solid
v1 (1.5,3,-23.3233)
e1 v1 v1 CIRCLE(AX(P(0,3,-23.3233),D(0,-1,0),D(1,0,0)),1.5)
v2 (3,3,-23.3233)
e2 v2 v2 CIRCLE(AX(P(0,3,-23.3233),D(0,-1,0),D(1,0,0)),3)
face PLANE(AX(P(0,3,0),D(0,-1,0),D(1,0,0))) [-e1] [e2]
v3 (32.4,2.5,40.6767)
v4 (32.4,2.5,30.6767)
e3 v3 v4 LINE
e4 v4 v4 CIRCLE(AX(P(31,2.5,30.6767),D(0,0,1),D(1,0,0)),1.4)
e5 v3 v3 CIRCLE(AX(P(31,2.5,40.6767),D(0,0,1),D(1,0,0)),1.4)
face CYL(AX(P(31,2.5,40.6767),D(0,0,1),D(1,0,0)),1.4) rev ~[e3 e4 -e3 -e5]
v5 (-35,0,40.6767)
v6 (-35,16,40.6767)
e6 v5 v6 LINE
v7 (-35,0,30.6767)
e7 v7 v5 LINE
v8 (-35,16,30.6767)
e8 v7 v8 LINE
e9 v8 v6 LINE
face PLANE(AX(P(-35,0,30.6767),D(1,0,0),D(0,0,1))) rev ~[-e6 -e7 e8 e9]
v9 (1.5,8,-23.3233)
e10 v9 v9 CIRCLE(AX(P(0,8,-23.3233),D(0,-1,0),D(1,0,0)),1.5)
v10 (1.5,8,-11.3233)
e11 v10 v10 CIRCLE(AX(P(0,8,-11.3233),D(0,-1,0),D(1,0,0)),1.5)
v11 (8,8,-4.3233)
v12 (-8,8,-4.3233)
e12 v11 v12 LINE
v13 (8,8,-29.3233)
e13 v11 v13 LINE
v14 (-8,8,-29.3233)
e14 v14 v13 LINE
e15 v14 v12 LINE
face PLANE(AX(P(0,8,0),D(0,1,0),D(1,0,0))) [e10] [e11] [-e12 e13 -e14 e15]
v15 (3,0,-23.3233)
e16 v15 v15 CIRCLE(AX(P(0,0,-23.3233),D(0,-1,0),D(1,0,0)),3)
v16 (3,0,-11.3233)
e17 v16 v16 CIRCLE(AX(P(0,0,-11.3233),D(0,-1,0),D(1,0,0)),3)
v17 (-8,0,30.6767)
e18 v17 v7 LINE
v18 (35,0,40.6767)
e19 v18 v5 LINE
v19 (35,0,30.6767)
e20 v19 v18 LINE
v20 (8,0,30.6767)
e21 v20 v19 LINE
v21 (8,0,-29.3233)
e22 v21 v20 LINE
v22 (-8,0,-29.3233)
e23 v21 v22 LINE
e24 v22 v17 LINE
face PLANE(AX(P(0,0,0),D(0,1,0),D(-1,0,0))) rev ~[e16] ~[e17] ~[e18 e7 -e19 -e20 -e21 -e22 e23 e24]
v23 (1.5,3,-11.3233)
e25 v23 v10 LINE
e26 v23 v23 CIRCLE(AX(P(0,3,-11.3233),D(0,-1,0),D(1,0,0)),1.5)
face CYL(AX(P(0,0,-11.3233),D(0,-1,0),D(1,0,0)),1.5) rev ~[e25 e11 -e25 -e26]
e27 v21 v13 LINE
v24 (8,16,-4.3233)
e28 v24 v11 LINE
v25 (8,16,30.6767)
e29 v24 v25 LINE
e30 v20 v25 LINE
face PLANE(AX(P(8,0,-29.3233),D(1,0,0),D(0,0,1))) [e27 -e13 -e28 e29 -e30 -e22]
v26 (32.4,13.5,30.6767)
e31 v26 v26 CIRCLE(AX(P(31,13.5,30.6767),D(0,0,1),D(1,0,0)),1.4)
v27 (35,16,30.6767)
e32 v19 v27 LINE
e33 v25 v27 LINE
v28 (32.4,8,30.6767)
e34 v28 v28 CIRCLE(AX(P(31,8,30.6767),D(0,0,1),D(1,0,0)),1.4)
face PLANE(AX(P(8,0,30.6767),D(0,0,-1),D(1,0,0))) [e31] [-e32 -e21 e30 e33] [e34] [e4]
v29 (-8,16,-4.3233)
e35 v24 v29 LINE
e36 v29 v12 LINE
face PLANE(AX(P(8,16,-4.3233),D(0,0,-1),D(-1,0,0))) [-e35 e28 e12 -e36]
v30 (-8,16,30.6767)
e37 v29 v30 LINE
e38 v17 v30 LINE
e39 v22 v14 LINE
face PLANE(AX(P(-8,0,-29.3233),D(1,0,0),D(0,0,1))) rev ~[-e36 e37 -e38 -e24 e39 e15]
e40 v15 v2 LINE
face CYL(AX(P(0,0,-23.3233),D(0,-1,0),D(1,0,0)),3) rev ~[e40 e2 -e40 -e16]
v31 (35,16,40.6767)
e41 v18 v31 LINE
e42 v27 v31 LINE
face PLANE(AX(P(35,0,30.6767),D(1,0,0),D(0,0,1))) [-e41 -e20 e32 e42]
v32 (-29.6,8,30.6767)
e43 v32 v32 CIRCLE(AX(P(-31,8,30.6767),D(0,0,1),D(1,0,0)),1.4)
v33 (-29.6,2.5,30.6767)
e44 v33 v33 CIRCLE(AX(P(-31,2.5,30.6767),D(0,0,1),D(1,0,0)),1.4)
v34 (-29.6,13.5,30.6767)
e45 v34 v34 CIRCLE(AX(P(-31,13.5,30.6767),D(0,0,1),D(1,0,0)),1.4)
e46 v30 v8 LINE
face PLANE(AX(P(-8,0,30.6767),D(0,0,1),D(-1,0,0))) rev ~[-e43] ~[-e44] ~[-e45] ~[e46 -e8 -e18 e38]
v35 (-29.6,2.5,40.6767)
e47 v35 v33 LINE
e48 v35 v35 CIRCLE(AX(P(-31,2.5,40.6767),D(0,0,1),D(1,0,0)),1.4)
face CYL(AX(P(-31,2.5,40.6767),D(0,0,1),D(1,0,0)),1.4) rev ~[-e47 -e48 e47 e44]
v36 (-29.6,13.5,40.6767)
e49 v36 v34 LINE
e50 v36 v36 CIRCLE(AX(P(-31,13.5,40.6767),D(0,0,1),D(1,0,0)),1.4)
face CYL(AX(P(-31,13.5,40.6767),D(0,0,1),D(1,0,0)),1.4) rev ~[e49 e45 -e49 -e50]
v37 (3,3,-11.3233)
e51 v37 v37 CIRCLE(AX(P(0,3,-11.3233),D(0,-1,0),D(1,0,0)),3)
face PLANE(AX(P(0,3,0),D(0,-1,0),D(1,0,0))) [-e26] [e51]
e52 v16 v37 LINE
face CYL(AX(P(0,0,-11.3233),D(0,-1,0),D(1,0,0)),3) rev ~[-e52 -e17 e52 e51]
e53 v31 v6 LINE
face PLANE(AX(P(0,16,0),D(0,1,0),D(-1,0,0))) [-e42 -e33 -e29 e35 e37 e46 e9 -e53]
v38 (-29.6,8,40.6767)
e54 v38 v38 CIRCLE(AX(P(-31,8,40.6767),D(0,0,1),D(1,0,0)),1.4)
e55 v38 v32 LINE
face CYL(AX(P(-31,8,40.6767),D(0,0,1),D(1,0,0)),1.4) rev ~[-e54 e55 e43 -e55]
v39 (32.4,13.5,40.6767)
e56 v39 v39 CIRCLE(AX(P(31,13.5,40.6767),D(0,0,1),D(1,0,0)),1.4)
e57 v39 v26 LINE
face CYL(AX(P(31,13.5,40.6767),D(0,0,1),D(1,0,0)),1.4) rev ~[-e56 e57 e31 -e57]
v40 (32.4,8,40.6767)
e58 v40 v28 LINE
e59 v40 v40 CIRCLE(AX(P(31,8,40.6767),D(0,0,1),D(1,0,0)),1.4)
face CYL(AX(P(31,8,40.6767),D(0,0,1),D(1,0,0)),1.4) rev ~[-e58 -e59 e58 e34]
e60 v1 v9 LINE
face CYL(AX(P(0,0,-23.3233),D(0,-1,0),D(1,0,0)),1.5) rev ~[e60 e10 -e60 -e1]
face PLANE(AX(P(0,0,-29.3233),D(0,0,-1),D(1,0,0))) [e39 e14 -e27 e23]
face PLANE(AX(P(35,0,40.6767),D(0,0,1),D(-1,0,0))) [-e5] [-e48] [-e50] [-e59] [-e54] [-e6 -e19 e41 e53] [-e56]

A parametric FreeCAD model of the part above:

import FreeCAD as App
import Part
import Sketcher
from FreeCAD import Vector
Q = App.Units.Quantity


def add_polygon(sketch, points):
    """Adds a closed chain of lines whose ends are joined by coincident constraints."""
    first, n = sketch.GeometryCount, len(points)
    for a, b in zip(points, points[1:] + points[:1]):
        sketch.addGeometry(Part.LineSegment(App.Vector(*a, 0), App.Vector(*b, 0)), False)
    for i in range(n):
        sketch.addConstraint(Sketcher.Constraint("Coincident", first + i, 2, first + (i + 1) % n, 1))

doc = App.newDocument("Part")
body = doc.addObject("PartDesign::Body", "Body")

# Sketch on XZ plane
sketch1 = body.newObject("Sketcher::SketchObject", "Sketch")
sketch1.AttachmentSupport = (doc.getObject("XZ_Plane"), [""])
sketch1.MapMode = "FlatFace"
add_polygon(sketch1, [(8, -29), (-8, -29), (-8, 31), (-35, 31), (-35, 41), (35, 41), (35, 31), (8, 31)])  # lines 0-7
sketch1.addConstraint(Sketcher.Constraint("Horizontal", 0))
sketch1.addConstraint(Sketcher.Constraint("Vertical", 1))
sketch1.addConstraint(Sketcher.Constraint("Horizontal", 2))
sketch1.addConstraint(Sketcher.Constraint("Vertical", 3))
sketch1.addConstraint(Sketcher.Constraint("Horizontal", 4))
sketch1.addConstraint(Sketcher.Constraint("Vertical", 5))
sketch1.addConstraint(Sketcher.Constraint("Horizontal", 6))
sketch1.addConstraint(Sketcher.Constraint("Vertical", 7))
sketch1.addConstraint(Sketcher.Constraint("Symmetric", 2, 2, 5, 2, -2))
sketch1.addConstraint(Sketcher.Constraint("Equal", 2, 6))
sketch1.addConstraint(Sketcher.Constraint("DistanceX", 0, 2, 0, 1, Q("16 mm")))
sketch1.addConstraint(Sketcher.Constraint("DistanceX", 4, 1, 4, 2, Q("70 mm")))
sketch1.addConstraint(Sketcher.Constraint("DistanceY", 3, 1, 3, 2, Q("10 mm")))
sketch1.addConstraint(Sketcher.Constraint("DistanceY", 0, 2, 3, 2, Q("70 mm")))
sketch1.addConstraint(Sketcher.Constraint("DistanceY", 0, 2, -1, 1, Q("29.3233 mm")))
pad1 = body.newObject("PartDesign::Pad", "Pad")
pad1.Profile = sketch1
pad1.Length = 16
pad1.Reversed = True

# Sketch on XZ plane
sketch2 = body.newObject("Sketcher::SketchObject", "Sketch001")
sketch2.AttachmentSupport = (doc.getObject("XZ_Plane"), [""])
sketch2.MapMode = "FlatFace"
sketch2.AttachmentOffset = App.Placement(Vector(0, 0, -16), App.Rotation())
add_polygon(sketch2, [(8, -4), (8, -29), (-8, -29), (-8, -4)])  # lines 0-3
sketch2.addConstraint(Sketcher.Constraint("Vertical", 0))
sketch2.addConstraint(Sketcher.Constraint("Horizontal", 1))
sketch2.addConstraint(Sketcher.Constraint("Vertical", 2))
sketch2.addConstraint(Sketcher.Constraint("Horizontal", 3))
sketch2.addConstraint(Sketcher.Constraint("DistanceY", 0, 2, 0, 1, Q("25 mm")))
sketch2.addConstraint(Sketcher.Constraint("DistanceX", 1, 2, 1, 1, Q("16 mm")))
sketch2.addConstraint(Sketcher.Constraint("DistanceX", -1, 1, 0, 2, Q("8 mm")))
sketch2.addConstraint(Sketcher.Constraint("DistanceY", 0, 2, -1, 1, Q("29.3233 mm")))
pocket1 = body.newObject("PartDesign::Pocket", "Pocket")
pocket1.Profile = sketch2
pocket1.Length = 8
pocket1.Reversed = True

# Sketch on XZ plane
sketch3 = body.newObject("Sketcher::SketchObject", "Sketch002")
sketch3.AttachmentSupport = (doc.getObject("XZ_Plane"), [""])
sketch3.MapMode = "FlatFace"
sketch3.addGeometry(Part.Circle(Vector(0, -23.3, 0), Vector(0, 0, 1), 1.5), False)
sketch3.addGeometry(Part.Circle(Vector(0, -11.3, 0), Vector(0, 0, 1), 1.5), False)
sketch3.addConstraint(Sketcher.Constraint("Equal", 0, 1))
sketch3.addConstraint(Sketcher.Constraint("PointOnObject", 0, 3, -2))
sketch3.addConstraint(Sketcher.Constraint("PointOnObject", 1, 3, -2))
sketch3.addConstraint(Sketcher.Constraint("Diameter", 0, Q("3 mm")))
sketch3.addConstraint(Sketcher.Constraint("DistanceY", 0, 3, 1, 3, Q("12 mm")))
sketch3.addConstraint(Sketcher.Constraint("DistanceY", 0, 3, -1, 1, Q("23.3233 mm")))
pocket2 = body.newObject("PartDesign::Pocket", "Pocket001")
pocket2.Profile = sketch3
pocket2.Type = "ThroughAll"

# Sketch on XZ plane
sketch4 = body.newObject("Sketcher::SketchObject", "Sketch003")
sketch4.AttachmentSupport = (doc.getObject("XZ_Plane"), [""])
sketch4.MapMode = "FlatFace"
sketch4.addGeometry(Part.Circle(Vector(0, -23.3, 0), Vector(0, 0, 1), 3), False)
sketch4.addGeometry(Part.Circle(Vector(0, -23.3, 0), Vector(0, 0, 1), 1.5), False)
sketch4.addGeometry(Part.Circle(Vector(0, -11.3, 0), Vector(0, 0, 1), 3), False)
sketch4.addGeometry(Part.Circle(Vector(0, -11.3, 0), Vector(0, 0, 1), 1.5), False)
sketch4.addConstraint(Sketcher.Constraint("Coincident", 1, 3, 0, 3))
sketch4.addConstraint(Sketcher.Constraint("Coincident", 3, 3, 2, 3))
sketch4.addConstraint(Sketcher.Constraint("Equal", 0, 2))
sketch4.addConstraint(Sketcher.Constraint("Equal", 1, 3))
sketch4.addConstraint(Sketcher.Constraint("PointOnObject", 0, 3, -2))
sketch4.addConstraint(Sketcher.Constraint("PointOnObject", 2, 3, -2))
sketch4.addConstraint(Sketcher.Constraint("Diameter", 0, Q("6 mm")))
sketch4.addConstraint(Sketcher.Constraint("Diameter", 1, Q("3 mm")))
sketch4.addConstraint(Sketcher.Constraint("DistanceY", 0, 3, 2, 3, Q("12 mm")))
sketch4.addConstraint(Sketcher.Constraint("DistanceY", 0, 3, -1, 1, Q("23.3233 mm")))
pocket3 = body.newObject("PartDesign::Pocket", "Pocket002")
pocket3.Profile = sketch4
pocket3.Length = 3

# Sketch on XY plane
sketch5 = body.newObject("Sketcher::SketchObject", "Sketch004")
sketch5.AttachmentSupport = (doc.getObject("XY_Plane"), [""])
sketch5.MapMode = "FlatFace"
sketch5.AttachmentOffset = App.Placement(Vector(0, 0, 40.6767), App.Rotation())
sketch5.addGeometry(Part.Circle(Vector(-31, 13.5, 0), Vector(0, 0, 1), 1.4), False)
sketch5.addGeometry(Part.Circle(Vector(-31, 8, 0), Vector(0, 0, 1), 1.4), False)
sketch5.addGeometry(Part.Circle(Vector(-31, 2.5, 0), Vector(0, 0, 1), 1.4), False)
sketch5.addGeometry(Part.Circle(Vector(31, 13.5, 0), Vector(0, 0, 1), 1.4), False)
sketch5.addGeometry(Part.Circle(Vector(31, 8, 0), Vector(0, 0, 1), 1.4), False)
sketch5.addGeometry(Part.Circle(Vector(31, 2.5, 0), Vector(0, 0, 1), 1.4), False)
sketch5.addConstraint(Sketcher.Constraint("Equal", 0, 1))
sketch5.addConstraint(Sketcher.Constraint("Equal", 1, 2))
sketch5.addConstraint(Sketcher.Constraint("Equal", 2, 3))
sketch5.addConstraint(Sketcher.Constraint("Equal", 3, 4))
sketch5.addConstraint(Sketcher.Constraint("Equal", 4, 5))
sketch5.addConstraint(Sketcher.Constraint("Symmetric", 0, 3, 3, 3, -2))
sketch5.addConstraint(Sketcher.Constraint("Symmetric", 1, 3, 4, 3, -2))
sketch5.addConstraint(Sketcher.Constraint("Symmetric", 2, 3, 5, 3, -2))
sketch5.addConstraint(Sketcher.Constraint("Vertical", 0, 3, 1, 3))
sketch5.addConstraint(Sketcher.Constraint("Vertical", 1, 3, 2, 3))
sketch5.addConstraint(Sketcher.Constraint("Diameter", 0, Q("2.8 mm")))
sketch5.addConstraint(Sketcher.Constraint("DistanceY", 2, 3, 0, 3, Q("11 mm")))
sketch5.addConstraint(Sketcher.Constraint("DistanceX", 0, 3, -1, 1, Q("31 mm")))
sketch5.addConstraint(Sketcher.Constraint("DistanceY", -1, 1, 1, 3, Q("8 mm")))
sketch5.addConstraint(Sketcher.Constraint("DistanceY", -1, 1, 0, 3, Q("13.5 mm")))
pocket4 = body.newObject("PartDesign::Pocket", "Pocket003")
pocket4.Profile = sketch5
pocket4.Type = "ThroughAll"

doc.recompute()
